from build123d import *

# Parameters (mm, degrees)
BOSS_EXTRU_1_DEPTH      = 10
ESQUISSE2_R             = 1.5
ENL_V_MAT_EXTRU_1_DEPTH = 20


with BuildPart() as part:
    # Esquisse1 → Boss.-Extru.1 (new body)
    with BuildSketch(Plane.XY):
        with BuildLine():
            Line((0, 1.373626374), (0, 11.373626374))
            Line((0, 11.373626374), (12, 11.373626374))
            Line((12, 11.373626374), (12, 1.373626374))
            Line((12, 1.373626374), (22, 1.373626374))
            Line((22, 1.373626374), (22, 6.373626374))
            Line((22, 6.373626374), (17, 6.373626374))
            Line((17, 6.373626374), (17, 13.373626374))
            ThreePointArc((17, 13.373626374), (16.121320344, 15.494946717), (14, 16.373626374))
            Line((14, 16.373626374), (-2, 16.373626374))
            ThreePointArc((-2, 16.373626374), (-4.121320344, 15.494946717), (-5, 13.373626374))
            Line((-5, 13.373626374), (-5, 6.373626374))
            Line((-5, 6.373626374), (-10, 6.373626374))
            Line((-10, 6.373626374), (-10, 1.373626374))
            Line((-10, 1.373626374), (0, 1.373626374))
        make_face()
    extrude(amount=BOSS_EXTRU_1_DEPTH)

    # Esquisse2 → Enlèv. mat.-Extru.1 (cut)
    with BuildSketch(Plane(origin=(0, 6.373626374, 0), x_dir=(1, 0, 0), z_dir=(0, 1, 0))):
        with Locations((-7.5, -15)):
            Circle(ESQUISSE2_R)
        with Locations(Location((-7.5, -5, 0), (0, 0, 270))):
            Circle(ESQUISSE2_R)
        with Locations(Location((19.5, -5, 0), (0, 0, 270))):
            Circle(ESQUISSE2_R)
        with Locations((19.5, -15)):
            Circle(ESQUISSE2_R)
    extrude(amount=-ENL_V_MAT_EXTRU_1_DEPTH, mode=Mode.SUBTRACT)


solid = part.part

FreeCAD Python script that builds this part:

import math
import FreeCAD as App
import Part
import Sketcher
Q = App.Units.Quantity

doc = App.newDocument("Part")
body = doc.addObject("PartDesign::Body", "Body")

# Sketch on XY plane
sketch1 = body.newObject("Sketcher::SketchObject", "Sketch")
sketch1.AttachmentSupport = (doc.getObject("XY_Plane"), [""])
sketch1.MapMode = "FlatFace"
sketch1.addGeometry(Part.LineSegment(App.Vector(0, 1.4, 0), App.Vector(0, 11.4, 0)), False)
sketch1.addGeometry(Part.LineSegment(App.Vector(0, 11.4, 0), App.Vector(12, 11.4, 0)), False)
sketch1.addGeometry(Part.LineSegment(App.Vector(12, 11.4, 0), App.Vector(12, 1.4, 0)), False)
sketch1.addGeometry(Part.LineSegment(App.Vector(12, 1.4, 0), App.Vector(22, 1.4, 0)), False)
sketch1.addGeometry(Part.LineSegment(App.Vector(22, 1.4, 0), App.Vector(22, 6.4, 0)), False)
sketch1.addGeometry(Part.LineSegment(App.Vector(22, 6.4, 0), App.Vector(17, 6.4, 0)), False)
sketch1.addGeometry(Part.LineSegment(App.Vector(17, 6.4, 0), App.Vector(17, 13.4, 0)), False)
sketch1.addGeometry(Part.ArcOfCircle(Part.Circle(App.Vector(14, 13.4, 0), App.Vector(0, 0, 1), 3), math.radians(0), math.radians(90)), False)
sketch1.addGeometry(Part.LineSegment(App.Vector(14, 16.4, 0), App.Vector(-2, 16.4, 0)), False)
sketch1.addGeometry(Part.ArcOfCircle(Part.Circle(App.Vector(-2, 13.4, 0), App.Vector(0, 0, 1), 3), math.radians(90), math.radians(180)), False)
sketch1.addGeometry(Part.LineSegment(App.Vector(-5, 13.4, 0), App.Vector(-5, 6.4, 0)), False)
sketch1.addGeometry(Part.LineSegment(App.Vector(-5, 6.4, 0), App.Vector(-10, 6.4, 0)), False)
sketch1.addGeometry(Part.LineSegment(App.Vector(-10, 6.4, 0), App.Vector(-10, 1.4, 0)), False)
sketch1.addGeometry(Part.LineSegment(App.Vector(-10, 1.4, 0), App.Vector(0, 1.4, 0)), False)
sketch1.addConstraint(Sketcher.Constraint("Coincident", 0, 2, 1, 1))
sketch1.addConstraint(Sketcher.Constraint("Coincident", 1, 2, 2, 1))
sketch1.addConstraint(Sketcher.Constraint("Coincident", 2, 2, 3, 1))
sketch1.addConstraint(Sketcher.Constraint("Coincident", 3, 2, 4, 1))
sketch1.addConstraint(Sketcher.Constraint("Coincident", 4, 2, 5, 1))
sketch1.addConstraint(Sketcher.Constraint("Coincident", 5, 2, 6, 1))
sketch1.addConstraint(Sketcher.Constraint("Tangent", 6, 2, 7, 1))
sketch1.addConstraint(Sketcher.Constraint("Tangent", 7, 2, 8, 1))
sketch1.addConstraint(Sketcher.Constraint("Tangent", 8, 2, 9, 1))
sketch1.addConstraint(Sketcher.Constraint("Tangent", 9, 2, 10, 1))
sketch1.addConstraint(Sketcher.Constraint("Coincident", 10, 2, 11, 1))
sketch1.addConstraint(Sketcher.Constraint("Coincident", 11, 2, 12, 1))
sketch1.addConstraint(Sketcher.Constraint("Coincident", 12, 2, 13, 1))
sketch1.addConstraint(Sketcher.Constraint("Coincident", 13, 2, 0, 1))
sketch1.addConstraint(Sketcher.Constraint("Vertical", 0))
sketch1.addConstraint(Sketcher.Constraint("Horizontal", 1))
sketch1.addConstraint(Sketcher.Constraint("Vertical", 2))
sketch1.addConstraint(Sketcher.Constraint("Horizontal", 3))
sketch1.addConstraint(Sketcher.Constraint("Vertical", 4))
sketch1.addConstraint(Sketcher.Constraint("Horizontal", 5))
sketch1.addConstraint(Sketcher.Constraint("Vertical", 6))
sketch1.addConstraint(Sketcher.Constraint("Horizontal", 8))
sketch1.addConstraint(Sketcher.Constraint("Vertical", 10))
sketch1.addConstraint(Sketcher.Constraint("Horizontal", 11))
sketch1.addConstraint(Sketcher.Constraint("Vertical", 12))
sketch1.addConstraint(Sketcher.Constraint("Horizontal", 13))
sketch1.addConstraint(Sketcher.Constraint("Equal", 7, 9))
sketch1.addConstraint(Sketcher.Constraint("PointOnObject", 0, 2, -2))
sketch1.addConstraint(Sketcher.Constraint("Horizontal", 5, 2, 10, 2))
sketch1.addConstraint(Sketcher.Constraint("Horizontal", 3, 2, 12, 2))
sketch1.addConstraint(Sketcher.Constraint("Equal", 5, 11))
sketch1.addConstraint(Sketcher.Constraint("Equal", 3, 13))
sketch1.addConstraint(Sketcher.Constraint("Equal", 13, 0))
sketch1.addConstraint(Sketcher.Constraint("Equal", 11, 4))
sketch1.addConstraint(Sketcher.Constraint("Radius", 7, Q("3 mm")))
sketch1.addConstraint(Sketcher.Constraint("DistanceX", 1, 1, 1, 2, Q("12 mm")))
sketch1.addConstraint(Sketcher.Constraint("DistanceX", 3, 1, 3, 2, Q("10 mm")))
sketch1.addConstraint(Sketcher.Constraint("DistanceX", 5, 2, 5, 1, Q("5 mm")))
sketch1.addConstraint(Sketcher.Constraint("DistanceY", 6, 1, 6, 2, Q("7 mm")))
sketch1.addConstraint(Sketcher.Constraint("DistanceY", -1, 1, 7, 3, Q("13.373626 mm")))
pad1 = body.newObject("PartDesign::Pad", "Pad")
pad1.Profile = sketch1
pad1.Length = 10

# Sketch on XZ plane
sketch2 = body.newObject("Sketcher::SketchObject", "Sketch001")
sketch2.AttachmentSupport = (doc.getObject("XZ_Plane"), [""])
sketch2.MapMode = "FlatFace"
sketch2.AttachmentOffset = App.Placement(App.Vector(0, 0, -6.373626), App.Rotation())
sketch2.addGeometry(Part.Circle(App.Vector(-7.5, 15, 0), App.Vector(0, 0, 1), 1.5), False)
sketch2.addGeometry(Part.Circle(App.Vector(-7.5, 5, 0), App.Vector(0, 0, 1), 1.5), False)
sketch2.addGeometry(Part.Circle(App.Vector(19.5, 5, 0), App.Vector(0, 0, 1), 1.5), False)
sketch2.addGeometry(Part.Circle(App.Vector(19.5, 15, 0), App.Vector(0, 0, 1), 1.5), False)
sketch2.addConstraint(Sketcher.Constraint("Equal", 0, 1))
sketch2.addConstraint(Sketcher.Constraint("Equal", 1, 2))
sketch2.addConstraint(Sketcher.Constraint("Equal", 2, 3))
sketch2.addConstraint(Sketcher.Constraint("Horizontal", 1, 3, 2, 3))
sketch2.addConstraint(Sketcher.Constraint("Horizontal", 0, 3, 3, 3))
sketch2.addConstraint(Sketcher.Constraint("Vertical", 0, 3, 1, 3))
sketch2.addConstraint(Sketcher.Constraint("Vertical", 2, 3, 3, 3))
sketch2.addConstraint(Sketcher.Constraint("Diameter", 0, Q("3 mm")))
sketch2.addConstraint(Sketcher.Constraint("DistanceY", -1, 1, 0, 3, Q("15 mm")))
sketch2.addConstraint(Sketcher.Constraint("DistanceY", -1, 1, 1, 3, Q("5 mm")))
sketch2.addConstraint(Sketcher.Constraint("DistanceX", 1, 3, 2, 3, Q("27 mm")))
sketch2.addConstraint(Sketcher.Constraint("DistanceX", 0, 3, -1, 1, Q("7.5 mm")))
pocket1 = body.newObject("PartDesign::Pocket", "Pocket")
pocket1.Profile = sketch2
pocket1.Length = 20
pocket1.Reversed = True

doc.recompute()
